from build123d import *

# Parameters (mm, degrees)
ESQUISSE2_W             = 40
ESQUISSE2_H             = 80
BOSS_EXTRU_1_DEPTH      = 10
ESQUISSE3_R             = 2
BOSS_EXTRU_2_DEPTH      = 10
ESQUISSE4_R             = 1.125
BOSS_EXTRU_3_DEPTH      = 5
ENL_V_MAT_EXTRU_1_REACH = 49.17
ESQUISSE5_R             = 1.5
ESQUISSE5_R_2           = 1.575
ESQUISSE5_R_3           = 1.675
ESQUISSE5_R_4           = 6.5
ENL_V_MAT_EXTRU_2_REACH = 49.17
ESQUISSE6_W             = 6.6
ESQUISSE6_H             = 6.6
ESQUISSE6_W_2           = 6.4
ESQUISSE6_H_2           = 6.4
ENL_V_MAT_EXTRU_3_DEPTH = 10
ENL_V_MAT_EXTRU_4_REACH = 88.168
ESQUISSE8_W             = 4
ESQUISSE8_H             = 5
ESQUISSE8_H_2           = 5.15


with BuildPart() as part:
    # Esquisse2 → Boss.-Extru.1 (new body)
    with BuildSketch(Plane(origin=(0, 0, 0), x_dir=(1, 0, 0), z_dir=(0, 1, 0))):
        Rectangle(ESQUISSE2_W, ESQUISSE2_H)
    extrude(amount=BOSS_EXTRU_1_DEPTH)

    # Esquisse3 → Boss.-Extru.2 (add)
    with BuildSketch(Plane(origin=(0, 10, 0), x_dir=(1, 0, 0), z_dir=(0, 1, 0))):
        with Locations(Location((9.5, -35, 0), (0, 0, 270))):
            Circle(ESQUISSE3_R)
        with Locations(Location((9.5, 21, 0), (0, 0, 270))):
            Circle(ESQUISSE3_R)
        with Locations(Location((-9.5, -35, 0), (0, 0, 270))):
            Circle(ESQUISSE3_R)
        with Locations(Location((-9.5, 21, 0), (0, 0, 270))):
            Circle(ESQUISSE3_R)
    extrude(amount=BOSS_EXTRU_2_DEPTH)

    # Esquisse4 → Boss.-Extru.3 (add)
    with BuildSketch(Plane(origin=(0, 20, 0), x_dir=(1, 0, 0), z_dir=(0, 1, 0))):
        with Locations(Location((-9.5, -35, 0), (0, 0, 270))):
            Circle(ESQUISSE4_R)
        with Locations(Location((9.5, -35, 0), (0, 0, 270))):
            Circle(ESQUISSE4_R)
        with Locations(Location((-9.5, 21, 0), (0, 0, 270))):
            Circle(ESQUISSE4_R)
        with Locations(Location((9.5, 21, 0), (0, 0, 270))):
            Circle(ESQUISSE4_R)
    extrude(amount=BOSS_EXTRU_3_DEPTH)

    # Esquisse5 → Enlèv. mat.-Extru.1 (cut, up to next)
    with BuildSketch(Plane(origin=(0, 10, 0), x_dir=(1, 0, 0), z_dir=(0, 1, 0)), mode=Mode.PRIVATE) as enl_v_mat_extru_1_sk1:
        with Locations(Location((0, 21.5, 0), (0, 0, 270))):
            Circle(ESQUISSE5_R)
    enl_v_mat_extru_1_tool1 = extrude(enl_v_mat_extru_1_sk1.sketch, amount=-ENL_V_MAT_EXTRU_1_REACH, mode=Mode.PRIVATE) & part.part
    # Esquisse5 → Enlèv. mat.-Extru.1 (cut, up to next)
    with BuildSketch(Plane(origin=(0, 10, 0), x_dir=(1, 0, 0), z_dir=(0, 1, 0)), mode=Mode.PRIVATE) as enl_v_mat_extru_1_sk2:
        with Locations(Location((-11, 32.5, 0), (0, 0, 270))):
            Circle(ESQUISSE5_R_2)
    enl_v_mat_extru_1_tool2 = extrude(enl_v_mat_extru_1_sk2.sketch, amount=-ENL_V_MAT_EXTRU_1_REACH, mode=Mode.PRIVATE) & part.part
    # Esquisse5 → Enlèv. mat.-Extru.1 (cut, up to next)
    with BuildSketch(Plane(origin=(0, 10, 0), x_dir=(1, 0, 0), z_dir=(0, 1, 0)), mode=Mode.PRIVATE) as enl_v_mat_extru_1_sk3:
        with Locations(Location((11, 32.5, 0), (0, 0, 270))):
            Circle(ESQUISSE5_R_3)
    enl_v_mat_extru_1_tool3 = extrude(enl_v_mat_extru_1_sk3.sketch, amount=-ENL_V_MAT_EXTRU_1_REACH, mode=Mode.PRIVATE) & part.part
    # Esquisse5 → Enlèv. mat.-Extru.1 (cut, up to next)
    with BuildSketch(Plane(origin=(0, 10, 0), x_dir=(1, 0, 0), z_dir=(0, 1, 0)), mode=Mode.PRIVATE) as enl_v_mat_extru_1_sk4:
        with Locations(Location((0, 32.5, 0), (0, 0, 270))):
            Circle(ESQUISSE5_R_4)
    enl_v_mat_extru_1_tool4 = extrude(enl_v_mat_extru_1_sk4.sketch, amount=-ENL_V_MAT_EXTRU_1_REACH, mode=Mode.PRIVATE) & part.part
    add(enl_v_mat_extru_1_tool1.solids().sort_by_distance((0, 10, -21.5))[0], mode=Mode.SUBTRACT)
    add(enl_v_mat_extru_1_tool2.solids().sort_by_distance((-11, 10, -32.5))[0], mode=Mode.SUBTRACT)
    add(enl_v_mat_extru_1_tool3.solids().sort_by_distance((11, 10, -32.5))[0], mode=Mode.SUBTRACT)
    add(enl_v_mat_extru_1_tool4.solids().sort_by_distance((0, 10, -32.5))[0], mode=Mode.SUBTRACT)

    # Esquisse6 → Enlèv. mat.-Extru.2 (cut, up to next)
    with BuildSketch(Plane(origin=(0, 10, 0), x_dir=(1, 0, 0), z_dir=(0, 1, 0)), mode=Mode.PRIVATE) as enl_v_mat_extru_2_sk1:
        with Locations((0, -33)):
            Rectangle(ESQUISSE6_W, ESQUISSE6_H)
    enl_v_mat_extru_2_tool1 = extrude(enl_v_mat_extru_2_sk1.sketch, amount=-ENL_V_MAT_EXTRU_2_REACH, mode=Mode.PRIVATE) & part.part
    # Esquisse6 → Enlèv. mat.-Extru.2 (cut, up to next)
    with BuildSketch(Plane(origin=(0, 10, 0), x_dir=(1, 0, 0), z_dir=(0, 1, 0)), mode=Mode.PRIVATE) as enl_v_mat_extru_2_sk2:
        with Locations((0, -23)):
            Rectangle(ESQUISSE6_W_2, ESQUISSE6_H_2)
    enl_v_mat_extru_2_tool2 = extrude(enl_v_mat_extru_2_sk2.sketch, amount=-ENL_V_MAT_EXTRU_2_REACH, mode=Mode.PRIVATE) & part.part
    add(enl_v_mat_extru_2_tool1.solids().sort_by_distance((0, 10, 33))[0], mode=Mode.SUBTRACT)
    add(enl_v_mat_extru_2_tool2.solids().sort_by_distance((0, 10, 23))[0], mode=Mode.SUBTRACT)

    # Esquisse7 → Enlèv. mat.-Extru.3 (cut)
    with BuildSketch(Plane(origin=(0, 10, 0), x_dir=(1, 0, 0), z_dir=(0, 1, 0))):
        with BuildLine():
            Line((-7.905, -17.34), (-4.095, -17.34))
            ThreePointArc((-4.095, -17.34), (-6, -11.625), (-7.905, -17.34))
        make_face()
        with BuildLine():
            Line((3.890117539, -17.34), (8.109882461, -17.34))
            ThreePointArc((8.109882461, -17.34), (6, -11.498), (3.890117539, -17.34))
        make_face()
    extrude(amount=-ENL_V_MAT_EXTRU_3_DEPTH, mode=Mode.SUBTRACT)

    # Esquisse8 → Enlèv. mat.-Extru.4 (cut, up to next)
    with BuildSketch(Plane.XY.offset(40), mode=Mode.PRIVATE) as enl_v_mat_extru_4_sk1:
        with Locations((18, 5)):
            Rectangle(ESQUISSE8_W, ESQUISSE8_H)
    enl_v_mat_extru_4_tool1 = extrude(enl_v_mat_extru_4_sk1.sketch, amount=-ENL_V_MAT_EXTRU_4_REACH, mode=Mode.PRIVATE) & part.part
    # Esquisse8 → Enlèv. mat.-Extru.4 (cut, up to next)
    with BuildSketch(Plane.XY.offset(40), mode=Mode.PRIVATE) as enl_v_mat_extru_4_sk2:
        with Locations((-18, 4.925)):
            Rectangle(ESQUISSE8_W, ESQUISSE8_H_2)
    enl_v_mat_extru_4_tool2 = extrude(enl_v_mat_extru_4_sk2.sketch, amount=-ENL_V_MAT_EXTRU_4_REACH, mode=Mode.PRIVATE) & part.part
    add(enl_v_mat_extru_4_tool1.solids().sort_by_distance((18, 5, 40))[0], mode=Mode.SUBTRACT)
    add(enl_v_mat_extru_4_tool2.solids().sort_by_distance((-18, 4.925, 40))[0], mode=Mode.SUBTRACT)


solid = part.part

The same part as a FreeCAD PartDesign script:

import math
import FreeCAD as App
import Part
import Sketcher
from FreeCAD import Vector

doc = App.newDocument("Part")
params = doc.addObject("Spreadsheet::Sheet", "Params")
for row, (alias, value) in enumerate([
    ("sketch1_width", "40 mm"),
    ("sketch1_height", "80 mm"),
    ("pad1_length", "10 mm"),
    ("sketch2_diameter", "4 mm"),
    ("pad2_length", "10 mm"),
    ("sketch3_diameter", "2.25 mm"),
    ("pad3_length", "5 mm"),
    ("sketch4_diameter", "3 mm"),
    ("sketch5_diameter", "3.15 mm"),
    ("sketch6_diameter", "3.35 mm"),
    ("sketch7_diameter", "13 mm"),
    ("sketch8_width", "6.6 mm"),
    ("sketch9_width", "6.4 mm"),
    ("sketch10_width", "3.81 mm"),
    ("pocket7_length", "10 mm"),
    ("sketch11_width", "4 mm"),
    ("sketch11_height", "5 mm"),
    ("sketch12_width", "4 mm"),
    ("sketch12_height", "5.15 mm"),
], start=1):
    params.set(f"A{row}", alias)
    params.set(f"B{row}", "=" + value)
    params.setAlias(f"B{row}", alias)

body = doc.addObject("PartDesign::Body", "Body")

sketch1 = doc.addObject("Sketcher::SketchObject", "Sketch")
body.addObject(sketch1)
sketch1.AttachmentSupport = (doc.XZ_Plane, [""])
sketch1.MapMode = "FlatFace"
sketch1.addGeometry(Part.LineSegment(Vector(-20, -40, 0), Vector(-20, 40, 0)), False)
sketch1.addGeometry(Part.LineSegment(Vector(-20, 40, 0), Vector(20, 40, 0)), False)
sketch1.addGeometry(Part.LineSegment(Vector(20, 40, 0), Vector(20, -40, 0)), False)
sketch1.addGeometry(Part.LineSegment(Vector(20, -40, 0), Vector(-20, -40, 0)), False)
sketch1.addConstraint(Sketcher.Constraint("Coincident", 0, 2, 1, 1))
sketch1.addConstraint(Sketcher.Constraint("Coincident", 1, 2, 2, 1))
sketch1.addConstraint(Sketcher.Constraint("Coincident", 2, 2, 3, 1))
sketch1.addConstraint(Sketcher.Constraint("Coincident", 3, 2, 0, 1))
sketch1.addConstraint(Sketcher.Constraint("Vertical", 0))
sketch1.addConstraint(Sketcher.Constraint("Horizontal", 1))
sketch1.addConstraint(Sketcher.Constraint("Vertical", 2))
sketch1.addConstraint(Sketcher.Constraint("Horizontal", 3))
sketch1.addConstraint(Sketcher.Constraint("Symmetric", 0, 2, 2, 2, -1, 1))
sketch1.addConstraint(Sketcher.Constraint("DistanceX", 1, 1, 1, 2, 40.0))
sketch1.addConstraint(Sketcher.Constraint("DistanceY", 0, 1, 0, 2, 80.0))
sketch1.setExpression("Constraints[9]", "Params.sketch1_width")
sketch1.setExpression("Constraints[10]", "Params.sketch1_height")
pad1 = doc.addObject("PartDesign::Pad", "Pad")
body.addObject(pad1)
pad1.Profile = sketch1
pad1.setExpression("Length", "Params.pad1_length")
pad1.Reversed = True

sketch2 = doc.addObject("Sketcher::SketchObject", "Sketch001")
body.addObject(sketch2)
sketch2.AttachmentSupport = (doc.XZ_Plane, [""])
sketch2.MapMode = "FlatFace"
sketch2.AttachmentOffset = App.Placement(Vector(0, 0, -10), App.Rotation())
sketch2.addGeometry(Part.Circle(Vector(9.5, 35, 0), Vector(0, 0, 1), 2), False)
sketch2.addGeometry(Part.Circle(Vector(9.5, -21, 0), Vector(0, 0, 1), 2), False)
sketch2.addGeometry(Part.Circle(Vector(-9.5, 35, 0), Vector(0, 0, 1), 2), False)
sketch2.addGeometry(Part.Circle(Vector(-9.5, -21, 0), Vector(0, 0, 1), 2), False)
sketch2.addConstraint(Sketcher.Constraint("Equal", 0, 1))
sketch2.addConstraint(Sketcher.Constraint("Equal", 1, 2))
sketch2.addConstraint(Sketcher.Constraint("Equal", 2, 3))
sketch2.addConstraint(Sketcher.Constraint("Symmetric", 0, 3, 2, 3, -2))
sketch2.addConstraint(Sketcher.Constraint("Symmetric", 1, 3, 3, 3, -2))
sketch2.addConstraint(Sketcher.Constraint("Vertical", 0, 3, 1, 3))
sketch2.addConstraint(Sketcher.Constraint("Diameter", 0, 4.0))
sketch2.addConstraint(Sketcher.Constraint("DistanceY", -1, 1, 0, 3, 35.0))
sketch2.addConstraint(Sketcher.Constraint("DistanceY", 1, 3, -1, 1, 21.0))
sketch2.addConstraint(Sketcher.Constraint("DistanceX", 2, 3, 0, 3, 19.0))
sketch2.setExpression("Constraints[6]", "Params.sketch2_diameter")
pad2 = doc.addObject("PartDesign::Pad", "Pad001")
body.addObject(pad2)
pad2.Profile = sketch2
pad2.setExpression("Length", "Params.pad2_length")
pad2.Reversed = True

sketch3 = doc.addObject("Sketcher::SketchObject", "Sketch002")
body.addObject(sketch3)
sketch3.AttachmentSupport = (doc.XZ_Plane, [""])
sketch3.MapMode = "FlatFace"
sketch3.AttachmentOffset = App.Placement(Vector(0, 0, -20), App.Rotation())
sketch3.addGeometry(Part.Circle(Vector(-9.5, 35, 0), Vector(0, 0, 1), 1.1), False)
sketch3.addGeometry(Part.Circle(Vector(9.5, 35, 0), Vector(0, 0, 1), 1.1), False)
sketch3.addGeometry(Part.Circle(Vector(-9.5, -21, 0), Vector(0, 0, 1), 1.1), False)
sketch3.addGeometry(Part.Circle(Vector(9.5, -21, 0), Vector(0, 0, 1), 1.1), False)
sketch3.addConstraint(Sketcher.Constraint("Equal", 0, 1))
sketch3.addConstraint(Sketcher.Constraint("Equal", 1, 2))
sketch3.addConstraint(Sketcher.Constraint("Equal", 2, 3))
sketch3.addConstraint(Sketcher.Constraint("Symmetric", 0, 3, 1, 3, -2))
sketch3.addConstraint(Sketcher.Constraint("Symmetric", 2, 3, 3, 3, -2))
sketch3.addConstraint(Sketcher.Constraint("Vertical", 0, 3, 2, 3))
sketch3.addConstraint(Sketcher.Constraint("Diameter", 0, 2.25))
sketch3.addConstraint(Sketcher.Constraint("DistanceY", -1, 1, 0, 3, 35.0))
sketch3.addConstraint(Sketcher.Constraint("DistanceY", 2, 3, -1, 1, 21.0))
sketch3.addConstraint(Sketcher.Constraint("DistanceX", 0, 3, 1, 3, 19.0))
sketch3.setExpression("Constraints[6]", "Params.sketch3_diameter")
pad3 = doc.addObject("PartDesign::Pad", "Pad002")
body.addObject(pad3)
pad3.Profile = sketch3
pad3.setExpression("Length", "Params.pad3_length")
pad3.Reversed = True

sketch4 = doc.addObject("Sketcher::SketchObject", "Sketch003")
body.addObject(sketch4)
sketch4.AttachmentSupport = (doc.XZ_Plane, [""])
sketch4.MapMode = "FlatFace"
sketch4.AttachmentOffset = App.Placement(Vector(0, 0, -10), App.Rotation())
sketch4.addGeometry(Part.Circle(Vector(0, -21.5, 0), Vector(0, 0, 1), 1.5), False)
sketch4.addConstraint(Sketcher.Constraint("PointOnObject", 0, 3, -2))
sketch4.addConstraint(Sketcher.Constraint("Diameter", 0, 3.0))
sketch4.addConstraint(Sketcher.Constraint("DistanceY", 0, 3, -1, 1, 21.5))
sketch4.setExpression("Constraints[1]", "Params.sketch4_diameter")
pocket1 = doc.addObject("PartDesign::Pocket", "Pocket")
body.addObject(pocket1)
pocket1.Profile = sketch4
pocket1.Type = "UpToFirst"
pocket1.Reversed = True

sketch5 = doc.addObject("Sketcher::SketchObject", "Sketch004")
body.addObject(sketch5)
sketch5.AttachmentSupport = (doc.XZ_Plane, [""])
sketch5.MapMode = "FlatFace"
sketch5.AttachmentOffset = App.Placement(Vector(0, 0, -10), App.Rotation())
sketch5.addGeometry(Part.Circle(Vector(-11, -32.5, 0), Vector(0, 0, 1), 1.6), False)
sketch5.addConstraint(Sketcher.Constraint("Diameter", 0, 3.15))
sketch5.addConstraint(Sketcher.Constraint("DistanceX", 0, 3, -1, 1, 11.0))
sketch5.addConstraint(Sketcher.Constraint("DistanceY", 0, 3, -1, 1, 32.5))
sketch5.setExpression("Constraints[0]", "Params.sketch5_diameter")
pocket2 = doc.addObject("PartDesign::Pocket", "Pocket001")
body.addObject(pocket2)
pocket2.Profile = sketch5
pocket2.Type = "UpToFirst"
pocket2.Reversed = True

sketch6 = doc.addObject("Sketcher::SketchObject", "Sketch005")
body.addObject(sketch6)
sketch6.AttachmentSupport = (doc.XZ_Plane, [""])
sketch6.MapMode = "FlatFace"
sketch6.AttachmentOffset = App.Placement(Vector(0, 0, -10), App.Rotation())
sketch6.addGeometry(Part.Circle(Vector(11, -32.5, 0), Vector(0, 0, 1), 1.7), False)
sketch6.addConstraint(Sketcher.Constraint("Diameter", 0, 3.35))
sketch6.addConstraint(Sketcher.Constraint("DistanceX", -1, 1, 0, 3, 11.0))
sketch6.addConstraint(Sketcher.Constraint("DistanceY", 0, 3, -1, 1, 32.5))
sketch6.setExpression("Constraints[0]", "Params.sketch6_diameter")
pocket3 = doc.addObject("PartDesign::Pocket", "Pocket002")
body.addObject(pocket3)
pocket3.Profile = sketch6
pocket3.Type = "UpToFirst"
pocket3.Reversed = True

sketch7 = doc.addObject("Sketcher::SketchObject", "Sketch006")
body.addObject(sketch7)
sketch7.AttachmentSupport = (doc.XZ_Plane, [""])
sketch7.MapMode = "FlatFace"
sketch7.AttachmentOffset = App.Placement(Vector(0, 0, -10), App.Rotation())
sketch7.addGeometry(Part.Circle(Vector(0, -32, 0), Vector(0, 0, 1), 6), False)
sketch7.addConstraint(Sketcher.Constraint("PointOnObject", 0, 3, -2))
sketch7.addConstraint(Sketcher.Constraint("Diameter", 0, 13.0))
sketch7.addConstraint(Sketcher.Constraint("DistanceY", 0, 3, -1, 1, 32.5))
sketch7.setExpression("Constraints[1]", "Params.sketch7_diameter")
pocket4 = doc.addObject("PartDesign::Pocket", "Pocket003")
body.addObject(pocket4)
pocket4.Profile = sketch7
pocket4.Type = "UpToFirst"
pocket4.Reversed = True

sketch8 = doc.addObject("Sketcher::SketchObject", "Sketch007")
body.addObject(sketch8)
sketch8.AttachmentSupport = (doc.XZ_Plane, [""])
sketch8.MapMode = "FlatFace"
sketch8.AttachmentOffset = App.Placement(Vector(0, 0, -10), App.Rotation())
sketch8.addGeometry(Part.LineSegment(Vector(-3, 30, 0), Vector(-3, 36, 0)), False)
sketch8.addGeometry(Part.LineSegment(Vector(-3, 36, 0), Vector(3, 36, 0)), False)
sketch8.addGeometry(Part.LineSegment(Vector(3, 36, 0), Vector(3, 30, 0)), False)
sketch8.addGeometry(Part.LineSegment(Vector(3, 30, 0), Vector(-3, 30, 0)), False)
sketch8.addConstraint(Sketcher.Constraint("Coincident", 0, 2, 1, 1))
sketch8.addConstraint(Sketcher.Constraint("Coincident", 1, 2, 2, 1))
sketch8.addConstraint(Sketcher.Constraint("Coincident", 2, 2, 3, 1))
sketch8.addConstraint(Sketcher.Constraint("Coincident", 3, 2, 0, 1))
sketch8.addConstraint(Sketcher.Constraint("Vertical", 0))
sketch8.addConstraint(Sketcher.Constraint("Horizontal", 1))
sketch8.addConstraint(Sketcher.Constraint("Vertical", 2))
sketch8.addConstraint(Sketcher.Constraint("Horizontal", 3))
sketch8.addConstraint(Sketcher.Constraint("Equal", 3, 0))
sketch8.addConstraint(Sketcher.Constraint("DistanceX", 1, 1, 1, 2, 6.6))
sketch8.addConstraint(Sketcher.Constraint("DistanceX", 0, 2, -1, 1, 3.3))
sketch8.addConstraint(Sketcher.Constraint("DistanceY", -1, 1, 0, 2, 36.3))
sketch8.setExpression("Constraints[9]", "Params.sketch8_width")
pocket5 = doc.addObject("PartDesign::Pocket", "Pocket004")
body.addObject(pocket5)
pocket5.Profile = sketch8
pocket5.Type = "UpToFirst"
pocket5.Reversed = True

sketch9 = doc.addObject("Sketcher::SketchObject", "Sketch008")
body.addObject(sketch9)
sketch9.AttachmentSupport = (doc.XZ_Plane, [""])
sketch9.MapMode = "FlatFace"
sketch9.AttachmentOffset = App.Placement(Vector(0, 0, -10), App.Rotation())
sketch9.addGeometry(Part.LineSegment(Vector(-3, 20, 0), Vector(-3, 26, 0)), False)
sketch9.addGeometry(Part.LineSegment(Vector(-3, 26, 0), Vector(3, 26, 0)), False)
sketch9.addGeometry(Part.LineSegment(Vector(3, 26, 0), Vector(3, 20, 0)), False)
sketch9.addGeometry(Part.LineSegment(Vector(3, 20, 0), Vector(-3, 20, 0)), False)
sketch9.addConstraint(Sketcher.Constraint("Coincident", 0, 2, 1, 1))
sketch9.addConstraint(Sketcher.Constraint("Coincident", 1, 2, 2, 1))
sketch9.addConstraint(Sketcher.Constraint("Coincident", 2, 2, 3, 1))
sketch9.addConstraint(Sketcher.Constraint("Coincident", 3, 2, 0, 1))
sketch9.addConstraint(Sketcher.Constraint("Vertical", 0))
sketch9.addConstraint(Sketcher.Constraint("Horizontal", 1))
sketch9.addConstraint(Sketcher.Constraint("Vertical", 2))
sketch9.addConstraint(Sketcher.Constraint("Horizontal", 3))
sketch9.addConstraint(Sketcher.Constraint("Equal", 3, 0))
sketch9.addConstraint(Sketcher.Constraint("DistanceX", 1, 1, 1, 2, 6.4))
sketch9.addConstraint(Sketcher.Constraint("DistanceX", 0, 2, -1, 1, 3.2))
sketch9.addConstraint(Sketcher.Constraint("DistanceY", -1, 1, 0, 2, 26.2))
sketch9.setExpression("Constraints[9]", "Params.sketch9_width")
pocket6 = doc.addObject("PartDesign::Pocket", "Pocket005")
body.addObject(pocket6)
pocket6.Profile = sketch9
pocket6.Type = "UpToFirst"
pocket6.Reversed = True

sketch10 = doc.addObject("Sketcher::SketchObject", "Sketch009")
body.addObject(sketch10)
sketch10.AttachmentSupport = (doc.XZ_Plane, [""])
sketch10.MapMode = "FlatFace"
sketch10.AttachmentOffset = App.Placement(Vector(0, 0, -10), App.Rotation())
sketch10.addGeometry(Part.LineSegment(Vector(-7.9, 17.3, 0), Vector(-4.1, 17.3, 0)), False)
sketch10.addGeometry(Part.ArcOfCircle(Part.Circle(Vector(-6, 14.8, 0), Vector(0, 0, 1), 3.2), math.radians(127), math.radians(413)), False)
sketch10.addGeometry(Part.LineSegment(Vector(3.9, 17.3, 0), Vector(8.1, 17.3, 0)), False)
sketch10.addGeometry(Part.ArcOfCircle(Part.Circle(Vector(6, 14.8, 0), Vector(0, 0, 1), 3.3), math.radians(130), math.radians(410)), False)
sketch10.addConstraint(Sketcher.Constraint("Coincident", 0, 1, 1, 1))
sketch10.addConstraint(Sketcher.Constraint("Coincident", 1, 2, 0, 2))
sketch10.addConstraint(Sketcher.Constraint("Coincident", 2, 1, 3, 1))
sketch10.addConstraint(Sketcher.Constraint("Coincident", 3, 2, 2, 2))
sketch10.addConstraint(Sketcher.Constraint("Horizontal", 0))
sketch10.addConstraint(Sketcher.Constraint("Horizontal", 2))
sketch10.addConstraint(Sketcher.Constraint("Symmetric", 1, 3, 3, 3, -2))
sketch10.addConstraint(Sketcher.Constraint("Horizontal", 1, 2, 2, 1))
sketch10.addConstraint(Sketcher.Constraint("DistanceX", 1, 3, -1, 1, 6.0))
sketch10.addConstraint(Sketcher.Constraint("Radius", 1, 3.175))
sketch10.addConstraint(Sketcher.Constraint("Radius", 3, 3.302))
sketch10.addConstraint(Sketcher.Constraint("DistanceX", 0, 1, 0, 2, 3.81))
sketch10.addConstraint(Sketcher.Constraint("DistanceY", -1, 1, 1, 3, 14.8))
sketch10.setExpression("Constraints[11]", "Params.sketch10_width")
pocket7 = doc.addObject("PartDesign::Pocket", "Pocket006")
body.addObject(pocket7)
pocket7.Profile = sketch10
pocket7.setExpression("Length", "Params.pocket7_length")
pocket7.Reversed = True

sketch11 = doc.addObject("Sketcher::SketchObject", "Sketch010")
body.addObject(sketch11)
sketch11.AttachmentSupport = (doc.XY_Plane, [""])
sketch11.MapMode = "FlatFace"
sketch11.AttachmentOffset = App.Placement(Vector(0, 0, 40), App.Rotation())
sketch11.addGeometry(Part.LineSegment(Vector(16, 7.5, 0), Vector(16, 2.5, 0)), False)
sketch11.addGeometry(Part.LineSegment(Vector(16, 2.5, 0), Vector(20, 2.5, 0)), False)
sketch11.addGeometry(Part.LineSegment(Vector(20, 2.5, 0), Vector(20, 7.5, 0)), False)
sketch11.addGeometry(Part.LineSegment(Vector(20, 7.5, 0), Vector(16, 7.5, 0)), False)
sketch11.addConstraint(Sketcher.Constraint("Coincident", 0, 2, 1, 1))
sketch11.addConstraint(Sketcher.Constraint("Coincident", 1, 2, 2, 1))
sketch11.addConstraint(Sketcher.Constraint("Coincident", 2, 2, 3, 1))
sketch11.addConstraint(Sketcher.Constraint("Coincident", 3, 2, 0, 1))
sketch11.addConstraint(Sketcher.Constraint("Vertical", 0))
sketch11.addConstraint(Sketcher.Constraint("Horizontal", 1))
sketch11.addConstraint(Sketcher.Constraint("Vertical", 2))
sketch11.addConstraint(Sketcher.Constraint("Horizontal", 3))
sketch11.addConstraint(Sketcher.Constraint("DistanceX", 1, 1, 1, 2, 4.0))
sketch11.addConstraint(Sketcher.Constraint("DistanceY", 0, 2, 0, 1, 5.0))
sketch11.addConstraint(Sketcher.Constraint("DistanceX", -1, 1, 0, 2, 16.0))
sketch11.addConstraint(Sketcher.Constraint("DistanceY", -1, 1, 0, 2, 2.5))
sketch11.setExpression("Constraints[8]", "Params.sketch11_width")
sketch11.setExpression("Constraints[9]", "Params.sketch11_height")
pocket8 = doc.addObject("PartDesign::Pocket", "Pocket007")
body.addObject(pocket8)
pocket8.Profile = sketch11
pocket8.Type = "UpToFirst"

sketch12 = doc.addObject("Sketcher::SketchObject", "Sketch011")
body.addObject(sketch12)
sketch12.AttachmentSupport = (doc.XY_Plane, [""])
sketch12.MapMode = "FlatFace"
sketch12.AttachmentOffset = App.Placement(Vector(0, 0, 40), App.Rotation())
sketch12.addGeometry(Part.LineSegment(Vector(-20, 7.5, 0), Vector(-20, 2.4, 0)), False)
sketch12.addGeometry(Part.LineSegment(Vector(-20, 2.4, 0), Vector(-16, 2.4, 0)), False)
sketch12.addGeometry(Part.LineSegment(Vector(-16, 2.4, 0), Vector(-16, 7.5, 0)), False)
sketch12.addGeometry(Part.LineSegment(Vector(-16, 7.5, 0), Vector(-20, 7.5, 0)), False)
sketch12.addConstraint(Sketcher.Constraint("Coincident", 0, 2, 1, 1))
sketch12.addConstraint(Sketcher.Constraint("Coincident", 1, 2, 2, 1))
sketch12.addConstraint(Sketcher.Constraint("Coincident", 2, 2, 3, 1))
sketch12.addConstraint(Sketcher.Constraint("Coincident", 3, 2, 0, 1))
sketch12.addConstraint(Sketcher.Constraint("Vertical", 0))
sketch12.addConstraint(Sketcher.Constraint("Horizontal", 1))
sketch12.addConstraint(Sketcher.Constraint("Vertical", 2))
sketch12.addConstraint(Sketcher.Constraint("Horizontal", 3))
sketch12.addConstraint(Sketcher.Constraint("DistanceX", 1, 1, 1, 2, 4.0))
sketch12.addConstraint(Sketcher.Constraint("DistanceX", 0, 2, -1, 1, 20.0))
sketch12.addConstraint(Sketcher.Constraint("DistanceY", 0, 2, 0, 1, 5.15))
sketch12.addConstraint(Sketcher.Constraint("DistanceY", -1, 1, 2, 2, 7.5))
sketch12.setExpression("Constraints[8]", "Params.sketch12_width")
sketch12.setExpression("Constraints[10]", "Params.sketch12_height")
pocket9 = doc.addObject("PartDesign::Pocket", "Pocket008")
body.addObject(pocket9)
pocket9.Profile = sketch12
pocket9.Type = "UpToFirst"

doc.recompute()
